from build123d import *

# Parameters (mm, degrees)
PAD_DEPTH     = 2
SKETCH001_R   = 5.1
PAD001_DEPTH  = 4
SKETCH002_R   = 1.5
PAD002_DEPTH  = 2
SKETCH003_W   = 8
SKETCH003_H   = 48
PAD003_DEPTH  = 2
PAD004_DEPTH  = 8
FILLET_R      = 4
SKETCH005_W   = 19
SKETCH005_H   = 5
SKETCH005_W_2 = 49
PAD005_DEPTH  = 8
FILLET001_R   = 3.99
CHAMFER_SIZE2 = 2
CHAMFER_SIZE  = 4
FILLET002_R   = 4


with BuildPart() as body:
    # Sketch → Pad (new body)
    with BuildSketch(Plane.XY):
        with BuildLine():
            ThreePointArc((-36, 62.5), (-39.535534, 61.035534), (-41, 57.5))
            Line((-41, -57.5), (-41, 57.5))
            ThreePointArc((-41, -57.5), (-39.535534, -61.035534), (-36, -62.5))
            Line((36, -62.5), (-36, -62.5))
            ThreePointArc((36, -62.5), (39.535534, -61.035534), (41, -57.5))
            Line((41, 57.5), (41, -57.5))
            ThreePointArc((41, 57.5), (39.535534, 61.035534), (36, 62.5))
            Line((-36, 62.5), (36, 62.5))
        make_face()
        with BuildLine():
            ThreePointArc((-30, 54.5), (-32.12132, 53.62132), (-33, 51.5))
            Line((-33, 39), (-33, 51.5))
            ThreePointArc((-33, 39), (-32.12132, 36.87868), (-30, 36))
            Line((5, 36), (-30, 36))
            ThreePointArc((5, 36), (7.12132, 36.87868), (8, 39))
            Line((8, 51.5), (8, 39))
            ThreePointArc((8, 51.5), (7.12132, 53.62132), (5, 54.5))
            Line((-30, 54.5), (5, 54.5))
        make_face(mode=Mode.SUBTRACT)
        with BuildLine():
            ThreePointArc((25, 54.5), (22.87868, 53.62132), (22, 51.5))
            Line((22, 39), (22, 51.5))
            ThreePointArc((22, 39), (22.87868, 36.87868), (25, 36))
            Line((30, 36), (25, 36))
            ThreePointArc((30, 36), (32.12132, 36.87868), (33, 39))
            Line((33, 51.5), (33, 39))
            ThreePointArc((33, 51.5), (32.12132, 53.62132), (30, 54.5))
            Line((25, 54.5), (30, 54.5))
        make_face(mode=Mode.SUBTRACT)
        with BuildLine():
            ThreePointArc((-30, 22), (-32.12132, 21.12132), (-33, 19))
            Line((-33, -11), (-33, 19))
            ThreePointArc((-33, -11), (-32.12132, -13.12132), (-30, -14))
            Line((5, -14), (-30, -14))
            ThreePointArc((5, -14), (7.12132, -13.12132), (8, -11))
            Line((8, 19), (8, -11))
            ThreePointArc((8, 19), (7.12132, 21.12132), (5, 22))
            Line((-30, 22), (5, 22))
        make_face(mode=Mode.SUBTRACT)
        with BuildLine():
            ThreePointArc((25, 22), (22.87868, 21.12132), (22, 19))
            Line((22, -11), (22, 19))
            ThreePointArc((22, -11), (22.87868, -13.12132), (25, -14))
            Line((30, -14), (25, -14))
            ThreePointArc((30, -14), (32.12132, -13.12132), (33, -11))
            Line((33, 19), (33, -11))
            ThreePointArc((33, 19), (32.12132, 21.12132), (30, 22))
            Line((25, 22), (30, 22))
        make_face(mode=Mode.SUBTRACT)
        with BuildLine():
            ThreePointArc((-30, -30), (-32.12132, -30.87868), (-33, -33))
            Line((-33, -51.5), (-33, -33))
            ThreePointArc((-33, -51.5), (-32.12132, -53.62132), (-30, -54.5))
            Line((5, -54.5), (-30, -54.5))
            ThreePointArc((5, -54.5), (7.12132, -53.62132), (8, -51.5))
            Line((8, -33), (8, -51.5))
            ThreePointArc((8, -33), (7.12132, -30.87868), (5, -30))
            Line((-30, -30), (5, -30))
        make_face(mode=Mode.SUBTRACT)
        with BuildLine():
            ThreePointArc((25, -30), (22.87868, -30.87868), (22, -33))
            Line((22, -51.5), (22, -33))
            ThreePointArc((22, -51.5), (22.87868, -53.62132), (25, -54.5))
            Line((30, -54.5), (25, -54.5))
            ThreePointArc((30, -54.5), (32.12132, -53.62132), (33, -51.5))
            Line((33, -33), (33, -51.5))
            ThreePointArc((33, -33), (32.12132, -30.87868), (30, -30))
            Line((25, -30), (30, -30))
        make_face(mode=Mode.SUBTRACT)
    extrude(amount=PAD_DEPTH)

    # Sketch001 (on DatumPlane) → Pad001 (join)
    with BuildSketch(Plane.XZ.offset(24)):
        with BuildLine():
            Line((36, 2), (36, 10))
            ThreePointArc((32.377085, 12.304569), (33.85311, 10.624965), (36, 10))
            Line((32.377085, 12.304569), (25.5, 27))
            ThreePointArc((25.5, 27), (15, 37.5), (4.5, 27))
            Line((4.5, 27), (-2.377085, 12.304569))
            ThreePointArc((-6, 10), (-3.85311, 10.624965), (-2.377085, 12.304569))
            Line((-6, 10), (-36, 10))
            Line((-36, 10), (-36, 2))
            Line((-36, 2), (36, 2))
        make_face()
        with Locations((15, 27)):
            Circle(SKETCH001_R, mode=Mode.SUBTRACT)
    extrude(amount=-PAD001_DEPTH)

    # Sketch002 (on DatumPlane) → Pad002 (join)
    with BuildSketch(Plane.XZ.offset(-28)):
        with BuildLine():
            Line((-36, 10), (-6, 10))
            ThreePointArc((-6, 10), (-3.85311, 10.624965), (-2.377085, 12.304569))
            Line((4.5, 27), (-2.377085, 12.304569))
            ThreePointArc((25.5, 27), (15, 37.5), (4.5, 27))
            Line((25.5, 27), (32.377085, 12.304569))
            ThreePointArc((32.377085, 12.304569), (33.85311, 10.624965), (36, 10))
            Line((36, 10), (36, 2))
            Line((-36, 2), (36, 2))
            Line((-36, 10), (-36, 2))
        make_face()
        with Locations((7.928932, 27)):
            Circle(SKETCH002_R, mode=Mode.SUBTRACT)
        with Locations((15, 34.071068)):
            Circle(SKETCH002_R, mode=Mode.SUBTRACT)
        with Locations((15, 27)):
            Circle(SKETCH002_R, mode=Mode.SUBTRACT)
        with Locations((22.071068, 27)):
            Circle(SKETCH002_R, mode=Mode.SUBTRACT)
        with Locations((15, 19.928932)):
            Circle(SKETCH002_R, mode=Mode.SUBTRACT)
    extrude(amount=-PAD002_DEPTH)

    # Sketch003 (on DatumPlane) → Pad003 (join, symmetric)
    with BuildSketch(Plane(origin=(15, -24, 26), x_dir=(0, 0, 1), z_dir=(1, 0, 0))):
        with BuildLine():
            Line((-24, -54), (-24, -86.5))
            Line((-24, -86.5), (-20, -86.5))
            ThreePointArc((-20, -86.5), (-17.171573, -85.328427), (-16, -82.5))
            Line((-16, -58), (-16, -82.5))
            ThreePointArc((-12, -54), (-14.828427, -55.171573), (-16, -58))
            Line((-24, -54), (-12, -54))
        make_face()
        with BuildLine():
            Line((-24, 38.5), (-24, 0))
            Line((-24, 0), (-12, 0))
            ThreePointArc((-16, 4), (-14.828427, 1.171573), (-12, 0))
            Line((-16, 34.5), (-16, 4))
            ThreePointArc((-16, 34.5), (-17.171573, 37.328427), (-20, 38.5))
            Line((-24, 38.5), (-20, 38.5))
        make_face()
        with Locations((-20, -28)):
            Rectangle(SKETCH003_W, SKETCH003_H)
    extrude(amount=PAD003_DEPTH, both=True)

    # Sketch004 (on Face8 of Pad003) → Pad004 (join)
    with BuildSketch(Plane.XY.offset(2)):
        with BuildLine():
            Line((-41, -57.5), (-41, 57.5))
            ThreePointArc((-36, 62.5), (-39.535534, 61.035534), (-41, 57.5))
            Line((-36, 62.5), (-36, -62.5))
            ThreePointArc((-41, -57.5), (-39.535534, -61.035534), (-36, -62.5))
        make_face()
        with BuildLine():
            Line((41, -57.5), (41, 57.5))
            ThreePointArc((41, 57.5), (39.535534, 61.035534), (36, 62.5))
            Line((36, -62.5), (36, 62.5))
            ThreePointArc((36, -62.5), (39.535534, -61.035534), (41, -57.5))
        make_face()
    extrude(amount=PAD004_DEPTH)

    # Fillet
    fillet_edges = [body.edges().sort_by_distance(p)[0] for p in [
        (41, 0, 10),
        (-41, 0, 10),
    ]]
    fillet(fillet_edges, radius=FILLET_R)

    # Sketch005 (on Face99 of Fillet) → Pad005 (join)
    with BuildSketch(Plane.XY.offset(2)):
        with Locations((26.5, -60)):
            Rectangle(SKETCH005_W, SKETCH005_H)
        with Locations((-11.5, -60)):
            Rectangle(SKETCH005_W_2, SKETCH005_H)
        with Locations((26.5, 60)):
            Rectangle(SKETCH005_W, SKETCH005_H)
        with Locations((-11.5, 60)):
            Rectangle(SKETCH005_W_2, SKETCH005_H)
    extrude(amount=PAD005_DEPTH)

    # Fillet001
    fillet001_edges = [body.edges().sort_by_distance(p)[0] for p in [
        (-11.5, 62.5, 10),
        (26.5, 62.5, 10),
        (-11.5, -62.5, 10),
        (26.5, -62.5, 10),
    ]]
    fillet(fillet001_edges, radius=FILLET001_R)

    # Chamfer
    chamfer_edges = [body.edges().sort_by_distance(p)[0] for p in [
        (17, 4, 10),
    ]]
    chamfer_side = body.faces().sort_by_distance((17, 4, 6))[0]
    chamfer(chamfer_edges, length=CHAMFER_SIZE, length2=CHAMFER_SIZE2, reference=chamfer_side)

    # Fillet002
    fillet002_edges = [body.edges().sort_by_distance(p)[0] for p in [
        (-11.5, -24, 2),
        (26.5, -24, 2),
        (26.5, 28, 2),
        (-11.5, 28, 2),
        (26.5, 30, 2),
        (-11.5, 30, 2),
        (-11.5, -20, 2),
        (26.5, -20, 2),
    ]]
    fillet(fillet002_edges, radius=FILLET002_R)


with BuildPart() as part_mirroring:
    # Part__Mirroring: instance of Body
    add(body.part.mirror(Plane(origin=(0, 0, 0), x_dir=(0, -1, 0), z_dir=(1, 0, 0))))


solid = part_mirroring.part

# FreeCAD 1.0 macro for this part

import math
import FreeCAD as App
import Part
import Sketcher


def edges_at(feature, points):
    """Names of the edges that pass closest to the given points."""
    edges = feature.Shape.Edges
    near = lambda p: min(range(len(edges)), key=lambda i: edges[i].distToShape(Part.Vertex(*p))[0])
    return sorted({f"Edge{near(p) + 1}" for p in points})

doc = App.newDocument("Part")
params = doc.addObject("Spreadsheet::Sheet", "Params")
for row, (alias, value) in enumerate([
    ("sketch1_radius", "5 mm"),
    ("sketch1_radius2", "3.000001 mm"),
    ("sketch1_width", "72 mm"),
    ("sketch1_width2", "35 mm"),
    ("sketch1_width3", "5 mm"),
    ("pad1_length", "2 mm"),
    ("sketch2_radius", "4.000001 mm"),
    ("sketch2_diameter", "10.2 mm"),
    ("sketch2_radius2", "10.5 mm"),
    ("sketch2_width", "30 mm"),
    ("sketch2_width2", "72 mm"),
    ("pad2_length", "4 mm"),
    ("sketch3_diameter", "3 mm"),
    ("sketch3_radius", "4.000001 mm"),
    ("sketch3_radius2", "10.5 mm"),
    ("sketch3_width", "30 mm"),
    ("sketch3_width2", "72 mm"),
    ("pad3_length", "2 mm"),
    ("sketch4_radius", "4 mm"),
    ("sketch4_width", "48 mm"),
    ("sketch4_height", "4 mm"),
    ("sketch4_width2", "32.5 mm"),
    ("sketch4_width3", "38.5 mm"),
    ("pad4_length", "4 mm"),
    ("sketch5_radius", "5 mm"),
    ("sketch5_height", "115 mm"),
    ("pad5_length", "8 mm"),
    ("fillet_radius", "4 mm"),
    ("sketch6_width", "19 mm"),
    ("sketch6_width2", "49 mm"),
    ("sketch6_height", "5 mm"),
    ("pad6_length", "8 mm"),
    ("fillet2_radius", "3.99 mm"),
    ("chamfer_size", "4 mm"),
    ("chamfer_size2", "2 mm"),
    ("fillet3_radius", "4 mm"),
], start=1):
    params.set(f"A{row}", alias)
    params.set(f"B{row}", "=" + value)
    params.setAlias(f"B{row}", alias)

body = doc.addObject("PartDesign::Body", "Body")

# Sketch on XY plane
sketch1 = body.newObject("Sketcher::SketchObject", "Sketch")
sketch1.AttachmentSupport = (doc.getObject("XY_Plane"), [""])
sketch1.MapMode = "FlatFace"
sketch1.addGeometry([
    Part.ArcOfCircle(Part.Circle(App.Vector(-36, 57.5, 0), App.Vector(0, 0, 1), 5), math.radians(89.999996), math.radians(180.000004)),  # 0
    Part.LineSegment(App.Vector(-41, 57.5, 0), App.Vector(-41, -57.5, 0)),  # 1
    Part.ArcOfCircle(Part.Circle(App.Vector(-36, -57.5, 0), App.Vector(0, 0, 1), 5), math.radians(179.999996), math.radians(270.000004)),  # 2
    Part.LineSegment(App.Vector(-36, -62.5, 0), App.Vector(36, -62.5, 0)),  # 3
    Part.ArcOfCircle(Part.Circle(App.Vector(36, -57.5, 0), App.Vector(0, 0, 1), 5), math.radians(-90.000004), math.radians(0.000004)),  # 4
    Part.LineSegment(App.Vector(41, -57.5, 0), App.Vector(41, 57.5, 0)),  # 5
    Part.ArcOfCircle(Part.Circle(App.Vector(36, 57.5, 0), App.Vector(0, 0, 1), 5), math.radians(-0.000004), math.radians(90.000004)),  # 6
    Part.LineSegment(App.Vector(36, 62.5, 0), App.Vector(-36, 62.5, 0)),  # 7
    Part.ArcOfCircle(Part.Circle(App.Vector(-29.999999, -33.000001, 0), App.Vector(0, 0, 1), 3.000001), math.radians(90.000022), math.radians(179.999978)),  # 8
    Part.LineSegment(App.Vector(-30, -30, 0), App.Vector(5, -30, 0)),  # 9
    Part.ArcOfCircle(Part.Circle(App.Vector(4.999999, -33.000001, 0), App.Vector(0, 0, 1), 3.000001), math.radians(0.000022), math.radians(89.999978)),  # 10
    Part.LineSegment(App.Vector(8, -33, 0), App.Vector(8, -51.5, 0)),  # 11
    Part.ArcOfCircle(Part.Circle(App.Vector(4.999999, -51.499999, 0), App.Vector(0, 0, 1), 3.000001), math.radians(-89.999978), math.radians(-0.000022)),  # 12
    Part.LineSegment(App.Vector(5, -54.5, 0), App.Vector(-30, -54.5, 0)),  # 13
    Part.ArcOfCircle(Part.Circle(App.Vector(-29.999999, -51.499999, 0), App.Vector(0, 0, 1), 3.000001), math.radians(-179.999978), math.radians(-90.000022)),  # 14
    Part.LineSegment(App.Vector(-33, -51.5, 0), App.Vector(-33, -33, 0)),  # 15
    Part.ArcOfCircle(Part.Circle(App.Vector(25.000001, -33.000001, 0), App.Vector(0, 0, 1), 3.000001), math.radians(90.000022), math.radians(179.999978)),  # 16
    Part.LineSegment(App.Vector(25, -30, 0), App.Vector(30, -30, 0)),  # 17
    Part.ArcOfCircle(Part.Circle(App.Vector(29.999999, -33.000001, 0), App.Vector(0, 0, 1), 3.000001), math.radians(0.000022), math.radians(89.999978)),  # 18
    Part.LineSegment(App.Vector(33, -33, 0), App.Vector(33, -51.5, 0)),  # 19
    Part.ArcOfCircle(Part.Circle(App.Vector(29.999999, -51.499999, 0), App.Vector(0, 0, 1), 3.000001), math.radians(-89.999978), math.radians(-0.000022)),  # 20
    Part.LineSegment(App.Vector(30, -54.5, 0), App.Vector(25, -54.5, 0)),  # 21
    Part.ArcOfCircle(Part.Circle(App.Vector(25.000001, -51.499999, 0), App.Vector(0, 0, 1), 3.000001), math.radians(-179.999978), math.radians(-90.000022)),  # 22
    Part.LineSegment(App.Vector(22, -51.5, 0), App.Vector(22, -33, 0)),  # 23
    Part.ArcOfCircle(Part.Circle(App.Vector(-29.999999, 18.999999, 0), App.Vector(0, 0, 1), 3.000001), math.radians(90.000022), math.radians(179.999978)),  # 24
    Part.LineSegment(App.Vector(-30, 22, 0), App.Vector(5, 22, 0)),  # 25
    Part.ArcOfCircle(Part.Circle(App.Vector(4.999999, 18.999999, 0), App.Vector(0, 0, 1), 3.000001), math.radians(0.000022), math.radians(89.999978)),  # 26
    Part.LineSegment(App.Vector(8, 19, 0), App.Vector(8, -11, 0)),  # 27
    Part.ArcOfCircle(Part.Circle(App.Vector(4.999999, -10.999999, 0), App.Vector(0, 0, 1), 3.000001), math.radians(-89.999978), math.radians(-0.000022)),  # 28
    Part.LineSegment(App.Vector(5, -14, 0), App.Vector(-30, -14, 0)),  # 29
    Part.ArcOfCircle(Part.Circle(App.Vector(-29.999999, -10.999999, 0), App.Vector(0, 0, 1), 3.000001), math.radians(-179.999978), math.radians(-90.000022)),  # 30
    Part.LineSegment(App.Vector(-33, -11, 0), App.Vector(-33, 19, 0)),  # 31
    Part.ArcOfCircle(Part.Circle(App.Vector(-29.999999, 51.499999, 0), App.Vector(0, 0, 1), 3.000001), math.radians(90.000022), math.radians(179.999978)),  # 32
    Part.LineSegment(App.Vector(-30, 54.5, 0), App.Vector(5, 54.5, 0)),  # 33
    Part.ArcOfCircle(Part.Circle(App.Vector(4.999999, 51.499999, 0), App.Vector(0, 0, 1), 3.000001), math.radians(0.000022), math.radians(89.999978)),  # 34
    Part.LineSegment(App.Vector(8, 51.5, 0), App.Vector(8, 39, 0)),  # 35
    Part.ArcOfCircle(Part.Circle(App.Vector(4.999999, 39.000001, 0), App.Vector(0, 0, 1), 3.000001), math.radians(-89.999978), math.radians(-0.000022)),  # 36
    Part.LineSegment(App.Vector(5, 36, 0), App.Vector(-30, 36, 0)),  # 37
    Part.ArcOfCircle(Part.Circle(App.Vector(-29.999999, 39.000001, 0), App.Vector(0, 0, 1), 3.000001), math.radians(-179.999978), math.radians(-90.000022)),  # 38
    Part.LineSegment(App.Vector(-33, 39, 0), App.Vector(-33, 51.5, 0)),  # 39
    Part.ArcOfCircle(Part.Circle(App.Vector(25.000001, 18.999999, 0), App.Vector(0, 0, 1), 3.000001), math.radians(90.000022), math.radians(179.999978)),  # 40
    Part.LineSegment(App.Vector(25, 22, 0), App.Vector(30, 22, 0)),  # 41
    Part.ArcOfCircle(Part.Circle(App.Vector(29.999999, 18.999999, 0), App.Vector(0, 0, 1), 3.000001), math.radians(0.000022), math.radians(89.999978)),  # 42
    Part.LineSegment(App.Vector(33, 19, 0), App.Vector(33, -11, 0)),  # 43
    Part.ArcOfCircle(Part.Circle(App.Vector(29.999999, -10.999999, 0), App.Vector(0, 0, 1), 3.000001), math.radians(-89.999978), math.radians(-0.000022)),  # 44
    Part.LineSegment(App.Vector(30, -14, 0), App.Vector(25, -14, 0)),  # 45
    Part.ArcOfCircle(Part.Circle(App.Vector(25.000001, -10.999999, 0), App.Vector(0, 0, 1), 3.000001), math.radians(-179.999978), math.radians(-90.000022)),  # 46
    Part.LineSegment(App.Vector(22, -11, 0), App.Vector(22, 19, 0)),  # 47
    Part.ArcOfCircle(Part.Circle(App.Vector(25.000001, 51.499999, 0), App.Vector(0, 0, 1), 3.000001), math.radians(90.000022), math.radians(179.999978)),  # 48
    Part.LineSegment(App.Vector(25, 54.5, 0), App.Vector(30, 54.5, 0)),  # 49
    Part.ArcOfCircle(Part.Circle(App.Vector(29.999999, 51.499999, 0), App.Vector(0, 0, 1), 3.000001), math.radians(0.000022), math.radians(89.999978)),  # 50
    Part.LineSegment(App.Vector(33, 51.5, 0), App.Vector(33, 39, 0)),  # 51
    Part.ArcOfCircle(Part.Circle(App.Vector(29.999999, 39.000001, 0), App.Vector(0, 0, 1), 3.000001), math.radians(-89.999978), math.radians(-0.000022)),  # 52
    Part.LineSegment(App.Vector(30, 36, 0), App.Vector(25, 36, 0)),  # 53
    Part.ArcOfCircle(Part.Circle(App.Vector(25.000001, 39.000001, 0), App.Vector(0, 0, 1), 3.000001), math.radians(-179.999978), math.radians(-90.000022)),  # 54
    Part.LineSegment(App.Vector(22, 39, 0), App.Vector(22, 51.5, 0)),  # 55
], False)
sketch1.addConstraint([
    Sketcher.Constraint("Tangent", 0, 2, 1, 1),
    Sketcher.Constraint("Tangent", 1, 2, 2, 1),
    Sketcher.Constraint("Tangent", 2, 2, 3, 1),
    Sketcher.Constraint("Tangent", 3, 2, 4, 1),
    Sketcher.Constraint("Tangent", 4, 2, 5, 1),
    Sketcher.Constraint("Tangent", 5, 2, 6, 1),
    Sketcher.Constraint("Tangent", 6, 2, 7, 1),
    Sketcher.Constraint("Tangent", 7, 2, 0, 1),
    Sketcher.Constraint("Tangent", 8, 1, 9, 1),
    Sketcher.Constraint("Tangent", 9, 2, 10, 2),
    Sketcher.Constraint("Tangent", 10, 1, 11, 1),
    Sketcher.Constraint("Tangent", 11, 2, 12, 2),
    Sketcher.Constraint("Tangent", 12, 1, 13, 1),
    Sketcher.Constraint("Tangent", 13, 2, 14, 2),
    Sketcher.Constraint("Tangent", 14, 1, 15, 1),
    Sketcher.Constraint("Tangent", 15, 2, 8, 2),
    Sketcher.Constraint("Tangent", 16, 1, 17, 1),
    Sketcher.Constraint("Tangent", 17, 2, 18, 2),
    Sketcher.Constraint("Tangent", 18, 1, 19, 1),
    Sketcher.Constraint("Tangent", 19, 2, 20, 2),
    Sketcher.Constraint("Tangent", 20, 1, 21, 1),
    Sketcher.Constraint("Tangent", 21, 2, 22, 2),
    Sketcher.Constraint("Tangent", 22, 1, 23, 1),
    Sketcher.Constraint("Tangent", 23, 2, 16, 2),
    Sketcher.Constraint("Tangent", 24, 1, 25, 1),
    Sketcher.Constraint("Tangent", 25, 2, 26, 2),
    Sketcher.Constraint("Tangent", 26, 1, 27, 1),
    Sketcher.Constraint("Tangent", 27, 2, 28, 2),
    Sketcher.Constraint("Tangent", 28, 1, 29, 1),
    Sketcher.Constraint("Tangent", 29, 2, 30, 2),
    Sketcher.Constraint("Tangent", 30, 1, 31, 1),
    Sketcher.Constraint("Tangent", 31, 2, 24, 2),
    Sketcher.Constraint("Tangent", 32, 1, 33, 1),
    Sketcher.Constraint("Tangent", 33, 2, 34, 2),
    Sketcher.Constraint("Tangent", 34, 1, 35, 1),
    Sketcher.Constraint("Tangent", 35, 2, 36, 2),
    Sketcher.Constraint("Tangent", 36, 1, 37, 1),
    Sketcher.Constraint("Tangent", 37, 2, 38, 2),
    Sketcher.Constraint("Tangent", 38, 1, 39, 1),
    Sketcher.Constraint("Tangent", 39, 2, 32, 2),
    Sketcher.Constraint("Tangent", 40, 1, 41, 1),
    Sketcher.Constraint("Tangent", 41, 2, 42, 2),
    Sketcher.Constraint("Tangent", 42, 1, 43, 1),
    Sketcher.Constraint("Tangent", 43, 2, 44, 2),
    Sketcher.Constraint("Tangent", 44, 1, 45, 1),
    Sketcher.Constraint("Tangent", 45, 2, 46, 2),
    Sketcher.Constraint("Tangent", 46, 1, 47, 1),
    Sketcher.Constraint("Tangent", 47, 2, 40, 2),
    Sketcher.Constraint("Tangent", 48, 1, 49, 1),
    Sketcher.Constraint("Tangent", 49, 2, 50, 2),
    Sketcher.Constraint("Tangent", 50, 1, 51, 1),
    Sketcher.Constraint("Tangent", 51, 2, 52, 2),
    Sketcher.Constraint("Tangent", 52, 1, 53, 1),
    Sketcher.Constraint("Tangent", 53, 2, 54, 2),
    Sketcher.Constraint("Tangent", 54, 1, 55, 1),
    Sketcher.Constraint("Tangent", 55, 2, 48, 2),
    Sketcher.Constraint("Vertical", 1),
    Sketcher.Constraint("Horizontal", 3),
    Sketcher.Constraint("Vertical", 5),
    Sketcher.Constraint("Horizontal", 7),
    Sketcher.Constraint("Horizontal", 9),
    Sketcher.Constraint("Vertical", 11),
    Sketcher.Constraint("Horizontal", 13),
    Sketcher.Constraint("Vertical", 15),
    Sketcher.Constraint("Horizontal", 17),
    Sketcher.Constraint("Vertical", 19),
    Sketcher.Constraint("Horizontal", 21),
    Sketcher.Constraint("Vertical", 23),
    Sketcher.Constraint("Horizontal", 25),
    Sketcher.Constraint("Vertical", 27),
    Sketcher.Constraint("Horizontal", 29),
    Sketcher.Constraint("Vertical", 31),
    Sketcher.Constraint("Horizontal", 33),
    Sketcher.Constraint("Vertical", 35),
    Sketcher.Constraint("Horizontal", 37),
    Sketcher.Constraint("Vertical", 39),
    Sketcher.Constraint("Horizontal", 41),
    Sketcher.Constraint("Vertical", 43),
    Sketcher.Constraint("Horizontal", 45),
    Sketcher.Constraint("Vertical", 47),
    Sketcher.Constraint("Horizontal", 49),
    Sketcher.Constraint("Vertical", 51),
    Sketcher.Constraint("Horizontal", 53),
    Sketcher.Constraint("Vertical", 55),
    Sketcher.Constraint("Equal", 0, 2),
    Sketcher.Constraint("Equal", 2, 4),
    Sketcher.Constraint("Equal", 4, 6),
    Sketcher.Constraint("Equal", 8, 10),
    Sketcher.Constraint("Equal", 10, 12),
    Sketcher.Constraint("Equal", 12, 14),
    Sketcher.Constraint("Equal", 14, 16),
    Sketcher.Constraint("Equal", 16, 18),
    Sketcher.Constraint("Equal", 18, 20),
    Sketcher.Constraint("Equal", 20, 22),
    Sketcher.Constraint("Equal", 22, 24),
    Sketcher.Constraint("Equal", 24, 26),
    Sketcher.Constraint("Equal", 26, 28),
    Sketcher.Constraint("Equal", 28, 30),
    Sketcher.Constraint("Equal", 30, 32),
    Sketcher.Constraint("Equal", 32, 34),
    Sketcher.Constraint("Equal", 34, 36),
    Sketcher.Constraint("Equal", 36, 38),
    Sketcher.Constraint("Equal", 38, 40),
    Sketcher.Constraint("Equal", 40, 42),
    Sketcher.Constraint("Equal", 42, 44),
    Sketcher.Constraint("Equal", 44, 46),
    Sketcher.Constraint("Equal", 46, 48),
    Sketcher.Constraint("Equal", 48, 50),
    Sketcher.Constraint("Equal", 50, 52),
    Sketcher.Constraint("Equal", 52, 54),
    Sketcher.Constraint("Symmetric", 0, 3, 4, 3, -1, 1),
    Sketcher.Constraint("Symmetric", 20, 3, 32, 3, -1, 1),
    Sketcher.Constraint("Symmetric", 14, 3, 50, 3, -1, 1),
    Sketcher.Constraint("Symmetric", 8, 3, 18, 3, -2),
    Sketcher.Constraint("Symmetric", 24, 3, 42, 3, -2),
    Sketcher.Constraint("Symmetric", 12, 3, 34, 3, -1),
    Sketcher.Constraint("Horizontal", 30, 3, 44, 3),
    Sketcher.Constraint("Horizontal", 38, 3, 52, 3),
    Sketcher.Constraint("Vertical", 14, 3, 24, 3),
    Sketcher.Constraint("Vertical", 12, 3, 26, 3),
    Sketcher.Constraint("Vertical", 22, 3, 40, 3),
    Sketcher.Constraint("Vertical", 46, 3, 48, 3),
    Sketcher.Constraint("Radius", 0, 5.0),
    Sketcher.Constraint("Radius", 8, 3.000001),
    Sketcher.Constraint("DistanceX", 3, 1, 3, 2, 72.0),
    Sketcher.Constraint("DistanceX", 9, 1, 9, 2, 35.0),
    Sketcher.Constraint("DistanceX", 17, 1, 17, 2, 5.0),
    Sketcher.Constraint("DistanceY", 1, 2, 1, 1, 115.0),
    Sketcher.Constraint("DistanceY", 27, 2, 27, 1, 30.0),
    Sketcher.Constraint("DistanceY", 11, 2, 11, 1, 18.5),
    Sketcher.Constraint("DistanceY", 35, 2, 35, 1, 12.5),
    Sketcher.Constraint("DistanceX", 8, 3, -1, 1, 29.999999),
    Sketcher.Constraint("DistanceY", 8, 3, -1, 1, 33.000001),
    Sketcher.Constraint("DistanceY", -1, 1, 24, 3, 18.999999),
])
sketch1.setExpression("Constraints[122]", "Params.sketch1_radius")
sketch1.setExpression("Constraints[123]", "Params.sketch1_radius2")
sketch1.setExpression("Constraints[124]", "Params.sketch1_width")
sketch1.setExpression("Constraints[125]", "Params.sketch1_width2")
sketch1.setExpression("Constraints[126]", "Params.sketch1_width3")
pad1 = body.newObject("PartDesign::Pad", "Pad")
pad1.Profile = sketch1
pad1.setExpression("Length", "Params.pad1_length")

# Sketch on XZ plane
sketch2 = body.newObject("Sketcher::SketchObject", "Sketch001")
sketch2.AttachmentSupport = (doc.getObject("XZ_Plane"), [""])
sketch2.MapMode = "FlatFace"
sketch2.AttachmentOffset = App.Placement(App.Vector(0, 0, 24), App.Rotation())
sketch2.addGeometry([
    Part.LineSegment(App.Vector(36, 2, 0), App.Vector(36, 10, 0)),  # 0
    Part.ArcOfCircle(Part.Circle(App.Vector(36.000001, 14.000001, 0), App.Vector(0, 0, 1), 4.000001), math.radians(-154.921605), math.radians(-90.000012)),  # 1
    Part.LineSegment(App.Vector(32.377085, 12.304569, 0), App.Vector(25.5, 27, 0)),  # 2
    Part.ArcOfCircle(Part.Circle(App.Vector(15, 27, 0), App.Vector(0, 0, 1), 10.5), math.radians(0), math.radians(180)),  # 3
    Part.LineSegment(App.Vector(4.5, 27, 0), App.Vector(-2.377085, 12.304569, 0)),  # 4
    Part.ArcOfCircle(Part.Circle(App.Vector(-6.000001, 14.000001, 0), App.Vector(0, 0, 1), 4.000001), math.radians(-89.999988), math.radians(-25.078395)),  # 5
    Part.LineSegment(App.Vector(-6, 10, 0), App.Vector(-36, 10, 0)),  # 6
    Part.LineSegment(App.Vector(-36, 10, 0), App.Vector(-36, 2, 0)),  # 7
    Part.LineSegment(App.Vector(-36, 2, 0), App.Vector(36, 2, 0)),  # 8
    Part.Circle(App.Vector(15, 27, 0), App.Vector(0, 0, 1), 5.1),  # 9
], False)
sketch2.addConstraint([
    Sketcher.Constraint("Coincident", 0, 2, 1, 2),
    Sketcher.Constraint("Tangent", 1, 1, 2, 1),
    Sketcher.Constraint("Coincident", 2, 2, 3, 1),
    Sketcher.Constraint("Coincident", 3, 2, 4, 1),
    Sketcher.Constraint("Tangent", 4, 2, 5, 2),
    Sketcher.Constraint("Tangent", 5, 1, 6, 1),
    Sketcher.Constraint("Coincident", 6, 2, 7, 1),
    Sketcher.Constraint("Coincident", 7, 2, 8, 1),
    Sketcher.Constraint("Coincident", 8, 2, 0, 1),
    Sketcher.Constraint("Vertical", 0),
    Sketcher.Constraint("Horizontal", 6),
    Sketcher.Constraint("Vertical", 7),
    Sketcher.Constraint("Horizontal", 8),
    Sketcher.Constraint("Coincident", 9, 3, 3, 3),
    Sketcher.Constraint("Equal", 1, 5),
    Sketcher.Constraint("Symmetric", 0, 2, 6, 2, -2),
    Sketcher.Constraint("Horizontal", 9, 3, 2, 2),
    Sketcher.Constraint("Horizontal", 2, 2, 3, 2),
    Sketcher.Constraint("Horizontal", 1, 1, 4, 2),
    Sketcher.Constraint("Vertical", 1, 3, 0, 2),
    Sketcher.Constraint("Radius", 1, 4.000001),
    Sketcher.Constraint("Diameter", 9, 10.2),
    Sketcher.Constraint("Radius", 3, 10.5),
    Sketcher.Constraint("DistanceX", 6, 2, 6, 1, 30.0),
    Sketcher.Constraint("DistanceX", 8, 1, 8, 2, 72.0),
    Sketcher.Constraint("DistanceY", 0, 1, 0, 2, 8.0),
    Sketcher.Constraint("DistanceY", -1, 1, 1, 3, 14.000001),
    Sketcher.Constraint("DistanceY", -1, 1, 3, 3, 27.0),
])
sketch2.setExpression("Constraints[20]", "Params.sketch2_radius")
sketch2.setExpression("Constraints[21]", "Params.sketch2_diameter")
sketch2.setExpression("Constraints[22]", "Params.sketch2_radius2")
sketch2.setExpression("Constraints[23]", "Params.sketch2_width")
sketch2.setExpression("Constraints[24]", "Params.sketch2_width2")
pad2 = body.newObject("PartDesign::Pad", "Pad001")
pad2.Profile = sketch2
pad2.setExpression("Length", "Params.pad2_length")
pad2.Reversed = True

# Sketch on XZ plane
sketch3 = body.newObject("Sketcher::SketchObject", "Sketch002")
sketch3.AttachmentSupport = (doc.getObject("XZ_Plane"), [""])
sketch3.MapMode = "FlatFace"
sketch3.AttachmentOffset = App.Placement(App.Vector(0, 0, -28), App.Rotation())
sketch3.addGeometry([
    Part.LineSegment(App.Vector(-6, 10, 0), App.Vector(-36, 10, 0)),  # 0
    Part.LineSegment(App.Vector(-36, 10, 0), App.Vector(-36, 2, 0)),  # 1
    Part.LineSegment(App.Vector(-36, 2, 0), App.Vector(36, 2, 0)),  # 2
    Part.LineSegment(App.Vector(36, 2, 0), App.Vector(36, 10, 0)),  # 3
    Part.ArcOfCircle(Part.Circle(App.Vector(36.000001, 14.000001, 0), App.Vector(0, 0, 1), 4.000001), math.radians(-154.921605), math.radians(-90.000012)),  # 4
    Part.LineSegment(App.Vector(32.377085, 12.304569, 0), App.Vector(25.5, 27, 0)),  # 5
    Part.ArcOfCircle(Part.Circle(App.Vector(15, 27, 0), App.Vector(0, 0, 1), 10.5), math.radians(0), math.radians(180)),  # 6
    Part.LineSegment(App.Vector(4.5, 27, 0), App.Vector(-2.377085, 12.304569, 0)),  # 7
    Part.ArcOfCircle(Part.Circle(App.Vector(-6.000001, 14.000001, 0), App.Vector(0, 0, 1), 4.000001), math.radians(-89.999988), math.radians(-25.078395)),  # 8
    Part.Circle(App.Vector(15, 19.928932, 0), App.Vector(0, 0, 1), 1.5),  # 9
    Part.Circle(App.Vector(22.071068, 27, 0), App.Vector(0, 0, 1), 1.5),  # 10
    Part.Circle(App.Vector(15, 27, 0), App.Vector(0, 0, 1), 1.5),  # 11
    Part.Circle(App.Vector(15, 34.071068, 0), App.Vector(0, 0, 1), 1.5),  # 12
    Part.Circle(App.Vector(7.928932, 27, 0), App.Vector(0, 0, 1), 1.5),  # 13
], False)
sketch3.addConstraint([
    Sketcher.Constraint("Coincident", 0, 2, 1, 1),
    Sketcher.Constraint("Coincident", 1, 2, 2, 1),
    Sketcher.Constraint("Coincident", 2, 2, 3, 1),
    Sketcher.Constraint("Coincident", 3, 2, 4, 2),
    Sketcher.Constraint("Tangent", 4, 1, 5, 1),
    Sketcher.Constraint("Coincident", 5, 2, 6, 1),
    Sketcher.Constraint("Coincident", 6, 2, 7, 1),
    Sketcher.Constraint("Tangent", 7, 2, 8, 2),
    Sketcher.Constraint("Tangent", 8, 1, 0, 1),
    Sketcher.Constraint("Horizontal", 0),
    Sketcher.Constraint("Vertical", 1),
    Sketcher.Constraint("Horizontal", 2),
    Sketcher.Constraint("Vertical", 3),
    Sketcher.Constraint("Coincident", 11, 3, 6, 3),
    Sketcher.Constraint("Equal", 4, 8),
    Sketcher.Constraint("Equal", 9, 10),
    Sketcher.Constraint("Equal", 10, 11),
    Sketcher.Constraint("Equal", 11, 12),
    Sketcher.Constraint("Equal", 12, 13),
    Sketcher.Constraint("Symmetric", 0, 2, 3, 2, -2),
    Sketcher.Constraint("Horizontal", 6, 3, 10, 3),
    Sketcher.Constraint("Horizontal", 11, 3, 13, 3),
    Sketcher.Constraint("Horizontal", 13, 3, 5, 2),
    Sketcher.Constraint("Horizontal", 5, 2, 6, 2),
    Sketcher.Constraint("Horizontal", 4, 1, 7, 2),
    Sketcher.Constraint("Vertical", 6, 3, 9, 3),
    Sketcher.Constraint("Vertical", 11, 3, 12, 3),
    Sketcher.Constraint("Vertical", 4, 3, 2, 2),
    Sketcher.Constraint("Diameter", 9, 3.0),
    Sketcher.Constraint("Radius", 4, 4.000001),
    Sketcher.Constraint("Radius", 6, 10.5),
    Sketcher.Constraint("DistanceX", 0, 2, 0, 1, 30.0),
    Sketcher.Constraint("DistanceX", 2, 1, 2, 2, 72.0),
    Sketcher.Constraint("DistanceY", 1, 2, 1, 1, 8.0),
    Sketcher.Constraint("DistanceY", -1, 1, 4, 3, 14.000001),
    Sketcher.Constraint("DistanceY", -1, 1, 6, 3, 27.0),
    Sketcher.Constraint("DistanceY", -1, 1, 9, 3, 19.928932),
    Sketcher.Constraint("DistanceX", -1, 1, 10, 3, 22.071068),
    Sketcher.Constraint("DistanceX", -1, 1, 13, 3, 7.928932),
    Sketcher.Constraint("DistanceY", -1, 1, 12, 3, 34.071068),
])
sketch3.setExpression("Constraints[28]", "Params.sketch3_diameter")
sketch3.setExpression("Constraints[29]", "Params.sketch3_radius")
sketch3.setExpression("Constraints[30]", "Params.sketch3_radius2")
sketch3.setExpression("Constraints[31]", "Params.sketch3_width")
sketch3.setExpression("Constraints[32]", "Params.sketch3_width2")
pad3 = body.newObject("PartDesign::Pad", "Pad002")
pad3.Profile = sketch3
pad3.setExpression("Length", "Params.pad3_length")
pad3.Reversed = True

# Sketch on YZ plane
sketch4 = body.newObject("Sketcher::SketchObject", "Sketch003")
sketch4.AttachmentSupport = (doc.getObject("YZ_Plane"), [""])
sketch4.MapMode = "FlatFace"
sketch4.AttachmentOffset = App.Placement(App.Vector(0, 0, 15), App.Rotation())
sketch4.addGeometry([
    Part.LineSegment(App.Vector(30, 2, 0), App.Vector(62.5, 2, 0)),  # 0
    Part.LineSegment(App.Vector(62.5, 2, 0), App.Vector(62.5, 6, 0)),  # 1
    Part.ArcOfCircle(Part.Circle(App.Vector(58.5, 6, 0), App.Vector(0, 0, 1), 4), math.radians(0.000006), math.radians(89.999994)),  # 2
    Part.LineSegment(App.Vector(58.5, 10, 0), App.Vector(34, 10, 0)),  # 3
    Part.ArcOfCircle(Part.Circle(App.Vector(34, 14, 0), App.Vector(0, 0, 1), 4), math.radians(-179.999994), math.radians(-90.000006)),  # 4
    Part.LineSegment(App.Vector(30, 14, 0), App.Vector(30, 2, 0)),  # 5
    Part.LineSegment(App.Vector(-62.5, 2, 0), App.Vector(-24, 2, 0)),  # 6
    Part.LineSegment(App.Vector(-24, 2, 0), App.Vector(-24, 14, 0)),  # 7
    Part.ArcOfCircle(Part.Circle(App.Vector(-28, 14, 0), App.Vector(0, 0, 1), 4), math.radians(-89.999994), math.radians(-0.000006)),  # 8
    Part.LineSegment(App.Vector(-28, 10, 0), App.Vector(-58.5, 10, 0)),  # 9
    Part.ArcOfCircle(Part.Circle(App.Vector(-58.5, 6, 0), App.Vector(0, 0, 1), 4), math.radians(90.000006), math.radians(179.999994)),  # 10
    Part.LineSegment(App.Vector(-62.5, 6, 0), App.Vector(-62.5, 2, 0)),  # 11
    Part.LineSegment(App.Vector(-20, 2, 0), App.Vector(28, 2, 0)),  # 12
    Part.LineSegment(App.Vector(28, 2, 0), App.Vector(28, 10, 0)),  # 13
    Part.LineSegment(App.Vector(28, 10, 0), App.Vector(-20, 10, 0)),  # 14
    Part.LineSegment(App.Vector(-20, 10, 0), App.Vector(-20, 2, 0)),  # 15
], False)
sketch4.addConstraint([
    Sketcher.Constraint("Coincident", 0, 2, 1, 1),
    Sketcher.Constraint("Tangent", 1, 2, 2, 1),
    Sketcher.Constraint("Tangent", 2, 2, 3, 1),
    Sketcher.Constraint("Tangent", 3, 2, 4, 2),
    Sketcher.Constraint("Tangent", 4, 1, 5, 1),
    Sketcher.Constraint("Coincident", 5, 2, 0, 1),
    Sketcher.Constraint("Coincident", 6, 2, 7, 1),
    Sketcher.Constraint("Tangent", 7, 2, 8, 2),
    Sketcher.Constraint("Tangent", 8, 1, 9, 1),
    Sketcher.Constraint("Tangent", 9, 2, 10, 1),
    Sketcher.Constraint("Tangent", 10, 2, 11, 1),
    Sketcher.Constraint("Coincident", 11, 2, 6, 1),
    Sketcher.Constraint("Coincident", 12, 2, 13, 1),
    Sketcher.Constraint("Coincident", 13, 2, 14, 1),
    Sketcher.Constraint("Coincident", 14, 2, 15, 1),
    Sketcher.Constraint("Coincident", 15, 2, 12, 1),
    Sketcher.Constraint("Horizontal", 0),
    Sketcher.Constraint("Vertical", 1),
    Sketcher.Constraint("Horizontal", 3),
    Sketcher.Constraint("Vertical", 5),
    Sketcher.Constraint("Horizontal", 6),
    Sketcher.Constraint("Vertical", 7),
    Sketcher.Constraint("Horizontal", 9),
    Sketcher.Constraint("Vertical", 11),
    Sketcher.Constraint("Horizontal", 12),
    Sketcher.Constraint("Vertical", 13),
    Sketcher.Constraint("Horizontal", 14),
    Sketcher.Constraint("Vertical", 15),
    Sketcher.Constraint("Equal", 2, 4),
    Sketcher.Constraint("Equal", 4, 8),
    Sketcher.Constraint("Equal", 8, 10),
    Sketcher.Constraint("Symmetric", 2, 3, 10, 3, -2),
    Sketcher.Constraint("Symmetric", 8, 1, 13, 2, -2),
    Sketcher.Constraint("Horizontal", 5, 2, 6, 2),
    Sketcher.Constraint("Horizontal", 11, 2, 12, 2),
    Sketcher.Constraint("Radius", 2, 4.0),
    Sketcher.Constraint("DistanceX", 12, 1, 12, 2, 48.0),
    Sketcher.Constraint("DistanceY", 1, 1, 1, 2, 4.0),
    Sketcher.Constraint("DistanceX", 0, 1, 0, 2, 32.5),
    Sketcher.Constraint("DistanceX", 6, 1, 6, 2, 38.5),
    Sketcher.Constraint("DistanceY", -1, 1, 2, 3, 6.0),
    Sketcher.Constraint("DistanceX", -1, 1, 4, 3, 34.0),
])
sketch4.setExpression("Constraints[35]", "Params.sketch4_radius")
sketch4.setExpression("Constraints[36]", "Params.sketch4_width")
sketch4.setExpression("Constraints[37]", "Params.sketch4_height")
sketch4.setExpression("Constraints[38]", "Params.sketch4_width2")
sketch4.setExpression("Constraints[39]", "Params.sketch4_width3")
pad4 = body.newObject("PartDesign::Pad", "Pad003")
pad4.Profile = sketch4
pad4.setExpression("Length", "Params.pad4_length")
pad4.Midplane = True

# Sketch on XY plane
sketch5 = body.newObject("Sketcher::SketchObject", "Sketch004")
sketch5.AttachmentSupport = (doc.getObject("XY_Plane"), [""])
sketch5.MapMode = "FlatFace"
sketch5.AttachmentOffset = App.Placement(App.Vector(0, 0, 2), App.Rotation())
sketch5.addGeometry([
    Part.LineSegment(App.Vector(-41, 57.5, 0), App.Vector(-41, -57.5, 0)),  # 0
    Part.ArcOfCircle(Part.Circle(App.Vector(-36, -57.5, 0), App.Vector(0, 0, 1), 5), math.radians(179.999996), math.radians(270.000004)),  # 1
    Part.LineSegment(App.Vector(-36, -62.5, 0), App.Vector(-36, 62.5, 0)),  # 2
    Part.ArcOfCircle(Part.Circle(App.Vector(-36, 57.5, 0), App.Vector(0, 0, 1), 5), math.radians(89.999996), math.radians(180.000004)),  # 3
    Part.LineSegment(App.Vector(41, -57.5, 0), App.Vector(41, 57.5, 0)),  # 4
    Part.ArcOfCircle(Part.Circle(App.Vector(36, 57.5, 0), App.Vector(0, 0, 1), 5), math.radians(-0.000004), math.radians(90.000004)),  # 5
    Part.LineSegment(App.Vector(36, 62.5, 0), App.Vector(36, -62.5, 0)),  # 6
    Part.ArcOfCircle(Part.Circle(App.Vector(36, -57.5, 0), App.Vector(0, 0, 1), 5), math.radians(-90.000004), math.radians(0.000004)),  # 7
], False)
sketch5.addConstraint([
    Sketcher.Constraint("Tangent", 0, 2, 1, 1),
    Sketcher.Constraint("Coincident", 1, 2, 2, 1),
    Sketcher.Constraint("Coincident", 2, 2, 3, 1),
    Sketcher.Constraint("Tangent", 3, 2, 0, 1),
    Sketcher.Constraint("Tangent", 4, 2, 5, 1),
    Sketcher.Constraint("Coincident", 5, 2, 6, 1),
    Sketcher.Constraint("Coincident", 6, 2, 7, 1),
    Sketcher.Constraint("Tangent", 7, 2, 4, 1),
    Sketcher.Constraint("Vertical", 0),
    Sketcher.Constraint("Vertical", 2),
    Sketcher.Constraint("Vertical", 4),
    Sketcher.Constraint("Vertical", 6),
    Sketcher.Constraint("Equal", 1, 3),
    Sketcher.Constraint("Equal", 3, 5),
    Sketcher.Constraint("Equal", 5, 7),
    Sketcher.Constraint("Symmetric", 1, 3, 5, 3, -1, 1),
    Sketcher.Constraint("Symmetric", 2, 2, 6, 2, -1, 1),
    Sketcher.Constraint("Horizontal", 3, 3, 5, 3),
    Sketcher.Constraint("Vertical", 3, 3, 1, 2),
    Sketcher.Constraint("Radius", 1, 5.0),
    Sketcher.Constraint("DistanceY", 0, 2, 0, 1, 115.0),
    Sketcher.Constraint("DistanceX", 1, 3, -1, 1, 36.0),
])
sketch5.setExpression("Constraints[19]", "Params.sketch5_radius")
sketch5.setExpression("Constraints[20]", "Params.sketch5_height")
pad5 = body.newObject("PartDesign::Pad", "Pad004")
pad5.Profile = sketch5
pad5.setExpression("Length", "Params.pad5_length")
doc.recompute()

fillet = body.newObject("PartDesign::Fillet", "Fillet")
fillet.Base = (pad5, edges_at(pad5, [(41, 0, 10), (-41, 0, 10)]))
fillet.setExpression("Radius", "Params.fillet_radius")

# Sketch on XY plane
sketch6 = body.newObject("Sketcher::SketchObject", "Sketch005")
sketch6.AttachmentSupport = (doc.getObject("XY_Plane"), [""])
sketch6.MapMode = "FlatFace"
sketch6.AttachmentOffset = App.Placement(App.Vector(0, 0, 2), App.Rotation())
sketch6.addGeometry([
    Part.LineSegment(App.Vector(17, -57.5, 0), App.Vector(17, -62.5, 0)),  # 0
    Part.LineSegment(App.Vector(17, -62.5, 0), App.Vector(36, -62.5, 0)),  # 1
    Part.LineSegment(App.Vector(36, -62.5, 0), App.Vector(36, -57.5, 0)),  # 2
    Part.LineSegment(App.Vector(36, -57.5, 0), App.Vector(17, -57.5, 0)),  # 3
    Part.LineSegment(App.Vector(-36, -57.5, 0), App.Vector(-36, -62.5, 0)),  # 4
    Part.LineSegment(App.Vector(-36, -62.5, 0), App.Vector(13, -62.5, 0)),  # 5
    Part.LineSegment(App.Vector(13, -62.5, 0), App.Vector(13, -57.5, 0)),  # 6
    Part.LineSegment(App.Vector(13, -57.5, 0), App.Vector(-36, -57.5, 0)),  # 7
    Part.LineSegment(App.Vector(17, 62.5, 0), App.Vector(17, 57.5, 0)),  # 8
    Part.LineSegment(App.Vector(17, 57.5, 0), App.Vector(36, 57.5, 0)),  # 9
    Part.LineSegment(App.Vector(36, 57.5, 0), App.Vector(36, 62.5, 0)),  # 10
    Part.LineSegment(App.Vector(36, 62.5, 0), App.Vector(17, 62.5, 0)),  # 11
    Part.LineSegment(App.Vector(-36, 62.5, 0), App.Vector(-36, 57.5, 0)),  # 12
    Part.LineSegment(App.Vector(-36, 57.5, 0), App.Vector(13, 57.5, 0)),  # 13
    Part.LineSegment(App.Vector(13, 57.5, 0), App.Vector(13, 62.5, 0)),  # 14
    Part.LineSegment(App.Vector(13, 62.5, 0), App.Vector(-36, 62.5, 0)),  # 15
], False)
sketch6.addConstraint([
    Sketcher.Constraint("Coincident", 0, 2, 1, 1),
    Sketcher.Constraint("Coincident", 1, 2, 2, 1),
    Sketcher.Constraint("Coincident", 2, 2, 3, 1),
    Sketcher.Constraint("Coincident", 3, 2, 0, 1),
    Sketcher.Constraint("Coincident", 4, 2, 5, 1),
    Sketcher.Constraint("Coincident", 5, 2, 6, 1),
    Sketcher.Constraint("Coincident", 6, 2, 7, 1),
    Sketcher.Constraint("Coincident", 7, 2, 4, 1),
    Sketcher.Constraint("Coincident", 8, 2, 9, 1),
    Sketcher.Constraint("Coincident", 9, 2, 10, 1),
    Sketcher.Constraint("Coincident", 10, 2, 11, 1),
    Sketcher.Constraint("Coincident", 11, 2, 8, 1),
    Sketcher.Constraint("Coincident", 12, 2, 13, 1),
    Sketcher.Constraint("Coincident", 13, 2, 14, 1),
    Sketcher.Constraint("Coincident", 14, 2, 15, 1),
    Sketcher.Constraint("Coincident", 15, 2, 12, 1),
    Sketcher.Constraint("Vertical", 0),
    Sketcher.Constraint("Horizontal", 1),
    Sketcher.Constraint("Vertical", 2),
    Sketcher.Constraint("Horizontal", 3),
    Sketcher.Constraint("Vertical", 4),
    Sketcher.Constraint("Horizontal", 5),
    Sketcher.Constraint("Vertical", 6),
    Sketcher.Constraint("Horizontal", 7),
    Sketcher.Constraint("Vertical", 8),
    Sketcher.Constraint("Horizontal", 9),
    Sketcher.Constraint("Vertical", 10),
    Sketcher.Constraint("Horizontal", 11),
    Sketcher.Constraint("Vertical", 12),
    Sketcher.Constraint("Horizontal", 13),
    Sketcher.Constraint("Vertical", 14),
    Sketcher.Constraint("Horizontal", 15),
    Sketcher.Constraint("Symmetric", 7, 2, 9, 2, -1, 1),
    Sketcher.Constraint("Symmetric", 2, 2, 12, 2, -1, 1),
    Sketcher.Constraint("Symmetric", 1, 2, 4, 2, -2),
    Sketcher.Constraint("Symmetric", 3, 2, 8, 2, -1),
    Sketcher.Constraint("Symmetric", 5, 2, 14, 2, -1),
    Sketcher.Constraint("Horizontal", 11, 2, 14, 2),
    Sketcher.Constraint("DistanceX", 1, 1, 1, 2, 19.0),
    Sketcher.Constraint("DistanceX", 5, 1, 5, 2, 49.0),
    Sketcher.Constraint("DistanceY", 0, 2, 0, 1, 5.0),
    Sketcher.Constraint("DistanceX", -1, 1, 0, 2, 17.0),
    Sketcher.Constraint("DistanceY", 3, 2, 8, 2, 115.0),
])
sketch6.setExpression("Constraints[38]", "Params.sketch6_width")
sketch6.setExpression("Constraints[39]", "Params.sketch6_width2")
sketch6.setExpression("Constraints[40]", "Params.sketch6_height")
pad6 = body.newObject("PartDesign::Pad", "Pad005")
pad6.Profile = sketch6
pad6.setExpression("Length", "Params.pad6_length")
doc.recompute()

fillet2 = body.newObject("PartDesign::Fillet", "Fillet001")
fillet2.Base = (pad6, edges_at(pad6, [
    (-11.5, 62.5, 10),
    (26.5, 62.5, 10),
    (-11.5, -62.5, 10),
    (26.5, -62.5, 10),
]))
fillet2.setExpression("Radius", "Params.fillet2_radius")
doc.recompute()

chamfer = body.newObject("PartDesign::Chamfer", "Chamfer")
chamfer.Base = (fillet2, edges_at(fillet2, [(17, 4, 10)]))
chamfer.ChamferType = "Two distances"
chamfer.setExpression("Size", "Params.chamfer_size")
chamfer.setExpression("Size2", "Params.chamfer_size2")
chamfer.FlipDirection = True
doc.recompute()

fillet3 = body.newObject("PartDesign::Fillet", "Fillet002")
fillet3.Base = (chamfer, edges_at(chamfer, [
    (-11.5, -24, 2),
    (26.5, -24, 2),
    (26.5, 28, 2),
    (-11.5, 28, 2),
    (26.5, 30, 2),
    (-11.5, 30, 2),
    (-11.5, -20, 2),
    (26.5, -20, 2),
]))
fillet3.setExpression("Radius", "Params.fillet3_radius")
body2 = doc.addObject("PartDesign::Body", "Body001")
doc.recompute()

mirroring = doc.addObject("Part::Mirroring", "Mirroring")
mirroring.Source = body
mirroring.Base = App.Vector(0, 0, 0)
mirroring.Normal = App.Vector(1, 0, 0)
body2.BaseFeature = mirroring
doc.recompute()
body.Visibility = False
mirroring.Visibility = False

doc.recompute()
